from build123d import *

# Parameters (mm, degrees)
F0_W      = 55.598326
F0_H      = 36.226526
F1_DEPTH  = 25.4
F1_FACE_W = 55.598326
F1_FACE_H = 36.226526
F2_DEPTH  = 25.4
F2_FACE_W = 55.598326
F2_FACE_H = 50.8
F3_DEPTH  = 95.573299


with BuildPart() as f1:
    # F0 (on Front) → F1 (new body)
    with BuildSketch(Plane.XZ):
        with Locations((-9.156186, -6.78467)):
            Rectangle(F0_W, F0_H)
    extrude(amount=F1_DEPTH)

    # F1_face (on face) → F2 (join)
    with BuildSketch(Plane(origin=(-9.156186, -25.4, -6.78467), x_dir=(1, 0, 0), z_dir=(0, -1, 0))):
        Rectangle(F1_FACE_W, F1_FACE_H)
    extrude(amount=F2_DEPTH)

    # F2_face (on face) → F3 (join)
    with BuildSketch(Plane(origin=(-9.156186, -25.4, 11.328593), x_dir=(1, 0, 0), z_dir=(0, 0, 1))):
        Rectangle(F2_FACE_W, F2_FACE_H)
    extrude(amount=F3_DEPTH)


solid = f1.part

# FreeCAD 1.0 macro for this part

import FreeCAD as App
import Part
import Sketcher

V = App.Vector
Q = App.Units.Quantity


def add_polygon(sketch, points):
    """Adds a closed chain of lines whose ends are joined by coincident constraints."""
    first, n = sketch.GeometryCount, len(points)
    for a, b in zip(points, points[1:] + points[:1]):
        sketch.addGeometry(Part.LineSegment(App.Vector(*a, 0), App.Vector(*b, 0)), False)
    for i in range(n):
        sketch.addConstraint(Sketcher.Constraint("Coincident", first + i, 2, first + (i + 1) % n, 1))

doc = App.newDocument("Part")
body = doc.addObject("PartDesign::Body", "Body")

# Sketch on XZ plane
sketch1 = body.newObject("Sketcher::SketchObject", "Sketch")
sketch1.AttachmentSupport = (doc.getObject("XZ_Plane"), [""])
sketch1.MapMode = "FlatFace"
add_polygon(sketch1, [(-37, 11), (-37, -25), (19, -25), (19, 11)])  # lines 0-3
sketch1.addConstraint([
    Sketcher.Constraint("Vertical", 0),
    Sketcher.Constraint("Horizontal", 1),
    Sketcher.Constraint("Vertical", 2),
    Sketcher.Constraint("Horizontal", 3),
    Sketcher.Constraint("DistanceX", 1, 1, 1, 2, 55.598326),
    Sketcher.Constraint("DistanceY", 0, 2, 0, 1, 36.226526),
    Sketcher.Constraint("DistanceX", 0, 2, -1, 1, 36.955349),
    Sketcher.Constraint("DistanceY", 0, 2, -1, 1, 24.897933),
])
pad1 = body.newObject("PartDesign::Pad", "Pad")
pad1.Profile = sketch1
pad1.Length = Q("1 in")

# Sketch on XZ plane
sketch2 = body.newObject("Sketcher::SketchObject", "Sketch001")
sketch2.AttachmentSupport = (doc.getObject("XZ_Plane"), [""])
sketch2.MapMode = "FlatFace"
sketch2.AttachmentOffset = App.Placement(V(0, 0, 1 * 25.4), App.Rotation())
add_polygon(sketch2, [(-37, 11), (-37, -25), (19, -25), (19, 11)])  # lines 0-3
sketch2.addConstraint([
    Sketcher.Constraint("Vertical", 0),
    Sketcher.Constraint("Horizontal", 1),
    Sketcher.Constraint("Vertical", 2),
    Sketcher.Constraint("Horizontal", 3),
    Sketcher.Constraint("DistanceX", 1, 1, 1, 2, 55.598326),
    Sketcher.Constraint("DistanceY", 0, 2, 0, 1, 36.226526),
    Sketcher.Constraint("DistanceX", 0, 2, -1, 1, 36.955349),
    Sketcher.Constraint("DistanceY", 0, 2, -1, 1, 24.897933),
])
pad2 = body.newObject("PartDesign::Pad", "Pad001")
pad2.Profile = sketch2
pad2.Length = Q("1 in")

# Sketch on XY plane
sketch3 = body.newObject("Sketcher::SketchObject", "Sketch002")
sketch3.AttachmentSupport = (doc.getObject("XY_Plane"), [""])
sketch3.MapMode = "FlatFace"
sketch3.AttachmentOffset = App.Placement(V(0, 0, 11.328593), App.Rotation())
add_polygon(sketch3, [(-37, 0), (-37, -51), (19, -51), (19, 0)])  # lines 0-3
sketch3.addConstraint([
    Sketcher.Constraint("Vertical", 0),
    Sketcher.Constraint("Horizontal", 1),
    Sketcher.Constraint("Vertical", 2),
    Sketcher.Constraint("Horizontal", 3),
    Sketcher.Constraint("PointOnObject", 2, 2, -1),
    Sketcher.Constraint("DistanceY", 0, 2, 0, 1, Q("2 in")),
    Sketcher.Constraint("DistanceX", 1, 1, 1, 2, 55.598326),
    Sketcher.Constraint("DistanceX", 0, 2, -1, 1, 36.955349),
])
pad3 = body.newObject("PartDesign::Pad", "Pad002")
pad3.Profile = sketch3
pad3.Length = 95.573299

doc.recompute()
